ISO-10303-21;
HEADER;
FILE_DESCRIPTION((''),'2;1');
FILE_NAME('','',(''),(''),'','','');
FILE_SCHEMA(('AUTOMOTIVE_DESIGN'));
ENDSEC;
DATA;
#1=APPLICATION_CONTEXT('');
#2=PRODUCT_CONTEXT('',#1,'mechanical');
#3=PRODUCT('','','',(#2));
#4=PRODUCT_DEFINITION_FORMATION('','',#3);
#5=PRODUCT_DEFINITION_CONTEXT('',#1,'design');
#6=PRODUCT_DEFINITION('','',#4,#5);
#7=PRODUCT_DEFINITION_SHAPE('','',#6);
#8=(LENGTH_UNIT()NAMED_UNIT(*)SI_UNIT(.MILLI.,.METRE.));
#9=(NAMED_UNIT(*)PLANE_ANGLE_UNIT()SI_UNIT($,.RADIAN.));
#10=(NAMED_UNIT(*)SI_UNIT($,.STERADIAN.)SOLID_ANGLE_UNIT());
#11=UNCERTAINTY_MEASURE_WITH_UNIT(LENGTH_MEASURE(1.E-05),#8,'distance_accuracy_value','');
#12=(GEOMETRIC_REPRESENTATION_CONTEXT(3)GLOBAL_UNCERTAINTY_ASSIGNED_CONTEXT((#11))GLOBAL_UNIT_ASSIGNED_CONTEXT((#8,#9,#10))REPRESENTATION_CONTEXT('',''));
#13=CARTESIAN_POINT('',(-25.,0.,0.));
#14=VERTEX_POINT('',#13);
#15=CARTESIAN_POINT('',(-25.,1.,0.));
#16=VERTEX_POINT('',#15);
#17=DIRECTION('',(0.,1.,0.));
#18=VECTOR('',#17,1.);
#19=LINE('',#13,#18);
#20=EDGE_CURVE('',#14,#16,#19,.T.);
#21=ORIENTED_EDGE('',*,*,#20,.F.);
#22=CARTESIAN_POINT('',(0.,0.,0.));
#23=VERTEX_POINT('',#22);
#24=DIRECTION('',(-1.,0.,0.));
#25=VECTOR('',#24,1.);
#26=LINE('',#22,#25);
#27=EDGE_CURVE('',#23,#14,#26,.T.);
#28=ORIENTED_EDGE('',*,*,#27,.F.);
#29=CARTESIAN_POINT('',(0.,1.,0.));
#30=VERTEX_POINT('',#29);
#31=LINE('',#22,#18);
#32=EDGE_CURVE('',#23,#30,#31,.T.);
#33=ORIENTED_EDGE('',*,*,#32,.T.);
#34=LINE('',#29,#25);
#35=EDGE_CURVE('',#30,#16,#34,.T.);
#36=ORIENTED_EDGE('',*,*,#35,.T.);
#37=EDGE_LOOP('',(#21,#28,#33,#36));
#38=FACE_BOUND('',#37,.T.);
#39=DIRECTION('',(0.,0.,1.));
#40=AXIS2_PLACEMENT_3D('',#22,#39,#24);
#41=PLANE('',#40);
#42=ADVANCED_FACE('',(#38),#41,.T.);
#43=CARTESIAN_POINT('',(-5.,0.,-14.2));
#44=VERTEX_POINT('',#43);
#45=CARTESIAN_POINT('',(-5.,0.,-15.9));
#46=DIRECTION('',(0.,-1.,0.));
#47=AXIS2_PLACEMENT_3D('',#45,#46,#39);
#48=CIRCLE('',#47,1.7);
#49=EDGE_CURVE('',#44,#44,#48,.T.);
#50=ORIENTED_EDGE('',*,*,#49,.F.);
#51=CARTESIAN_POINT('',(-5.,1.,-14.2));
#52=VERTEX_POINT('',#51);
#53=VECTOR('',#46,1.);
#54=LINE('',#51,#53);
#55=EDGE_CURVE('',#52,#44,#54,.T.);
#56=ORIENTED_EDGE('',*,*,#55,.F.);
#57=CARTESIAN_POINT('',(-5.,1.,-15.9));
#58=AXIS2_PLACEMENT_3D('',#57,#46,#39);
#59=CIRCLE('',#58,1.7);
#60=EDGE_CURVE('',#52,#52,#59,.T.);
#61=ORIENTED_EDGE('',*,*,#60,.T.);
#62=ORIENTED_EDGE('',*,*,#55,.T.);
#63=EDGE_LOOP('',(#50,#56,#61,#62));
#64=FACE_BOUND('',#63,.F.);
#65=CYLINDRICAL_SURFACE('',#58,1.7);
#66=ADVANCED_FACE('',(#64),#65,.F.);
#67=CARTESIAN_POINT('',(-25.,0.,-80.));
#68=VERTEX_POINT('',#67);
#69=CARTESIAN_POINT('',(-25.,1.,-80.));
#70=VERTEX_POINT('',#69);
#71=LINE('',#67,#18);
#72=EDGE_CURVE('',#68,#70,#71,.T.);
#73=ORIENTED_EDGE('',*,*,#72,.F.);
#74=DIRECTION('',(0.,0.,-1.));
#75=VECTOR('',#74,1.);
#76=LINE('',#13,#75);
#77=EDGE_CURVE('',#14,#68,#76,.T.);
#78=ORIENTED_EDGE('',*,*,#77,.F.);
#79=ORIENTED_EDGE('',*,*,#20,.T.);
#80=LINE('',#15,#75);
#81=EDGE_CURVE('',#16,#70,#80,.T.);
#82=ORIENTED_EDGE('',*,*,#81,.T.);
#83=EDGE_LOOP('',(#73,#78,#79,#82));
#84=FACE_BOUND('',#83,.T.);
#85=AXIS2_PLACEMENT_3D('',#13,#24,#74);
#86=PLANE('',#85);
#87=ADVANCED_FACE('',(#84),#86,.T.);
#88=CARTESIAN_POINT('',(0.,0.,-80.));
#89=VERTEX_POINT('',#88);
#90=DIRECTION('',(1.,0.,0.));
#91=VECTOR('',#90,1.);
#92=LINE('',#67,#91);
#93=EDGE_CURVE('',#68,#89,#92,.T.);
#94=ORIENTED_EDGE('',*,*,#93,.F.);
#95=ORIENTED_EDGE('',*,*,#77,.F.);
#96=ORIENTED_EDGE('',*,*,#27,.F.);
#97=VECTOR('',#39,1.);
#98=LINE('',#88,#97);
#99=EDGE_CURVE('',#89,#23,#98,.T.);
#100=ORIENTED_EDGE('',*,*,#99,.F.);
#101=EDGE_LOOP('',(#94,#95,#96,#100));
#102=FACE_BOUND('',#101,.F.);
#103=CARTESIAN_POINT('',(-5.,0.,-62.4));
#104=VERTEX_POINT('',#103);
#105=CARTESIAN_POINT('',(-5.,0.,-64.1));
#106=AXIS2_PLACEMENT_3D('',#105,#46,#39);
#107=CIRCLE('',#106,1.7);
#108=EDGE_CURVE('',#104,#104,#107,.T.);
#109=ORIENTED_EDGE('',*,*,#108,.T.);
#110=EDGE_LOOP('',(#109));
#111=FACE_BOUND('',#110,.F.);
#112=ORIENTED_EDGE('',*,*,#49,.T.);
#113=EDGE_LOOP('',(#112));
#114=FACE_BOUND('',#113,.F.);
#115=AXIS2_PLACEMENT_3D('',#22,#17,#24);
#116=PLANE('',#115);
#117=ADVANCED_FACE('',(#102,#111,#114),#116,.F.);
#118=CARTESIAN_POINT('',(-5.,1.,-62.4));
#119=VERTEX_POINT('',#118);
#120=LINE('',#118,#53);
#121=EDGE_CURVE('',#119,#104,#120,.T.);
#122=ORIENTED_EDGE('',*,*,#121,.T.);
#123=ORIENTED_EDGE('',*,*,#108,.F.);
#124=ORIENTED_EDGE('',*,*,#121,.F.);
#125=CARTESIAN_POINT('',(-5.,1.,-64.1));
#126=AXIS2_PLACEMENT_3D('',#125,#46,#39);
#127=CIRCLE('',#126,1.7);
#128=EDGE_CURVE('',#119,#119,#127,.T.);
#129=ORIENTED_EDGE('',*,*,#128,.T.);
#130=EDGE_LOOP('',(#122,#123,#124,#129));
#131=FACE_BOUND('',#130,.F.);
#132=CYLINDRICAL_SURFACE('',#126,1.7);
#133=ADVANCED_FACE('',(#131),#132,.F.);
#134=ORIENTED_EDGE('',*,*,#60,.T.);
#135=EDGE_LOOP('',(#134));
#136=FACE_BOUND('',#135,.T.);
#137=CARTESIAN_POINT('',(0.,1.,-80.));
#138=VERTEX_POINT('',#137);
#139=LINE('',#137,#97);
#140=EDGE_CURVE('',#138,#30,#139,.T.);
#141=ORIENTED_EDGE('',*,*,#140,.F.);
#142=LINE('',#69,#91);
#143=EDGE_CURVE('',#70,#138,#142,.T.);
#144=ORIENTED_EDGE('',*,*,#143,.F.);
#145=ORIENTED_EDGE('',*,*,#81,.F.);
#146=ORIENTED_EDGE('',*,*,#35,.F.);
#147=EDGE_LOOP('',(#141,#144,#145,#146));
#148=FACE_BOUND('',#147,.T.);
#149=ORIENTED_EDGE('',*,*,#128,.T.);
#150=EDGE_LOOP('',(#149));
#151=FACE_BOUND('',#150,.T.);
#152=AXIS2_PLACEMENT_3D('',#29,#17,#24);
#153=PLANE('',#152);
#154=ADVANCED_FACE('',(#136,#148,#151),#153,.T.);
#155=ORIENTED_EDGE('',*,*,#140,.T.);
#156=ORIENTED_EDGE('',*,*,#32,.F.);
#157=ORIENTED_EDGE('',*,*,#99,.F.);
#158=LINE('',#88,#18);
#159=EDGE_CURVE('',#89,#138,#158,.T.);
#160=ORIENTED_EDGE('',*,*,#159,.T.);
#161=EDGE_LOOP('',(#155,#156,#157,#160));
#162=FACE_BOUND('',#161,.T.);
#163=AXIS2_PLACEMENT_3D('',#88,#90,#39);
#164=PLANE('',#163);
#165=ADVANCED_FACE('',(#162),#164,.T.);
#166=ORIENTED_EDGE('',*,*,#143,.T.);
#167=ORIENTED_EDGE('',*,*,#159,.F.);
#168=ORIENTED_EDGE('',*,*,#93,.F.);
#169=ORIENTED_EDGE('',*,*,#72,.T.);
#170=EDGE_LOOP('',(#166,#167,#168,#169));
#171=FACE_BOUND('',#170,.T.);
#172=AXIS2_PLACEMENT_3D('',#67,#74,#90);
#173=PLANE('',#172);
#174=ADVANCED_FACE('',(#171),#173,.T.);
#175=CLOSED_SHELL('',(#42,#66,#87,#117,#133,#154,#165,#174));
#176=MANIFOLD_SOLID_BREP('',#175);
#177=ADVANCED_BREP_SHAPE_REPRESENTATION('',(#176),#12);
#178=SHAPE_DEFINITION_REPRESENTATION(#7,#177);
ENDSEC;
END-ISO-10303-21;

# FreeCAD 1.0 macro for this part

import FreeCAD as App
import Part
import Sketcher

V = App.Vector

doc = App.newDocument("Part")
params = doc.addObject("Spreadsheet::Sheet", "Params")
for row, (alias, value) in enumerate([
    ("sketch1_width", "25 mm"),
    ("sketch1_height", "80 mm"),
    ("pad1_length", "1 mm"),
    ("sketch2_diameter", "3.4 mm"),
    ("hole_diameter", "3.4 mm"),
], start=1):
    params.set(f"A{row}", alias)
    params.set(f"B{row}", "=" + value)
    params.setAlias(f"B{row}", alias)

body = doc.addObject("PartDesign::Body", "Body")

sketch1 = body.newObject("Sketcher::SketchObject", "Sketch")
sketch1.AttachmentSupport = (doc.getObject("XZ_Plane"), [""])
sketch1.MapMode = "FlatFace"
sketch1.addGeometry([
    Part.LineSegment(V(-25, 0, 0), V(0, 0, 0)),
    Part.LineSegment(V(0, 0, 0), V(0, -80, 0)),
    Part.LineSegment(V(0, -80, 0), V(-25, -80, 0)),
    Part.LineSegment(V(-25, -80, 0), V(-25, 0, 0)),
], False)
sketch1.addConstraint([
    Sketcher.Constraint("Coincident", 0, 2, 1, 1),
    Sketcher.Constraint("Coincident", 1, 2, 2, 1),
    Sketcher.Constraint("Coincident", 2, 2, 3, 1),
    Sketcher.Constraint("Coincident", 3, 2, 0, 1),
    Sketcher.Constraint("Horizontal", 0),
    Sketcher.Constraint("Vertical", 1),
    Sketcher.Constraint("Horizontal", 2),
    Sketcher.Constraint("Vertical", 3),
    Sketcher.Constraint("Coincident", 0, 2, -1, 1),
    Sketcher.Constraint("DistanceX", 0, 1, 0, 2, 25.0),
    Sketcher.Constraint("DistanceY", 1, 2, 1, 1, 80.0),
])
sketch1.setExpression("Constraints[9]", "Params.sketch1_width")
sketch1.setExpression("Constraints[10]", "Params.sketch1_height")
pad1 = body.newObject("PartDesign::Pad", "Pad")
pad1.Profile = sketch1
pad1.setExpression("Length", "Params.pad1_length")
pad1.Reversed = True

sketch2 = body.newObject("Sketcher::SketchObject", "Sketch001")
sketch2.AttachmentSupport = (doc.getObject("XZ_Plane"), [""])
sketch2.MapMode = "FlatFace"
sketch2.AttachmentOffset = App.Placement(V(0, 0, -1), App.Rotation())
sketch2.addGeometry([
    Part.Circle(V(-5, -15.9, 0), V(0, 0, 1), 1.7),
    Part.Circle(V(-5, -64.1, 0), V(0, 0, 1), 1.7),
], False)
sketch2.addConstraint([
    Sketcher.Constraint("Equal", 0, 1),
    Sketcher.Constraint("Vertical", 0, 3, 1, 3),
    Sketcher.Constraint("Diameter", 0, 3.4),
    Sketcher.Constraint("DistanceX", 0, 3, -1, 1, 5.0),
    Sketcher.Constraint("DistanceY", 0, 3, -1, 1, 15.9),
    Sketcher.Constraint("DistanceY", 1, 3, -1, 1, 64.1),
])
sketch2.setExpression("Constraints[2]", "Params.sketch2_diameter")
doc.recompute()
hole = body.newObject("PartDesign::Hole", "Hole")
hole.Profile = sketch2
hole.ThreadType = "None"
hole.setExpression("Diameter", "Params.hole_diameter")
hole.DepthType = "ThroughAll"
hole.Reversed = True

doc.recompute()
